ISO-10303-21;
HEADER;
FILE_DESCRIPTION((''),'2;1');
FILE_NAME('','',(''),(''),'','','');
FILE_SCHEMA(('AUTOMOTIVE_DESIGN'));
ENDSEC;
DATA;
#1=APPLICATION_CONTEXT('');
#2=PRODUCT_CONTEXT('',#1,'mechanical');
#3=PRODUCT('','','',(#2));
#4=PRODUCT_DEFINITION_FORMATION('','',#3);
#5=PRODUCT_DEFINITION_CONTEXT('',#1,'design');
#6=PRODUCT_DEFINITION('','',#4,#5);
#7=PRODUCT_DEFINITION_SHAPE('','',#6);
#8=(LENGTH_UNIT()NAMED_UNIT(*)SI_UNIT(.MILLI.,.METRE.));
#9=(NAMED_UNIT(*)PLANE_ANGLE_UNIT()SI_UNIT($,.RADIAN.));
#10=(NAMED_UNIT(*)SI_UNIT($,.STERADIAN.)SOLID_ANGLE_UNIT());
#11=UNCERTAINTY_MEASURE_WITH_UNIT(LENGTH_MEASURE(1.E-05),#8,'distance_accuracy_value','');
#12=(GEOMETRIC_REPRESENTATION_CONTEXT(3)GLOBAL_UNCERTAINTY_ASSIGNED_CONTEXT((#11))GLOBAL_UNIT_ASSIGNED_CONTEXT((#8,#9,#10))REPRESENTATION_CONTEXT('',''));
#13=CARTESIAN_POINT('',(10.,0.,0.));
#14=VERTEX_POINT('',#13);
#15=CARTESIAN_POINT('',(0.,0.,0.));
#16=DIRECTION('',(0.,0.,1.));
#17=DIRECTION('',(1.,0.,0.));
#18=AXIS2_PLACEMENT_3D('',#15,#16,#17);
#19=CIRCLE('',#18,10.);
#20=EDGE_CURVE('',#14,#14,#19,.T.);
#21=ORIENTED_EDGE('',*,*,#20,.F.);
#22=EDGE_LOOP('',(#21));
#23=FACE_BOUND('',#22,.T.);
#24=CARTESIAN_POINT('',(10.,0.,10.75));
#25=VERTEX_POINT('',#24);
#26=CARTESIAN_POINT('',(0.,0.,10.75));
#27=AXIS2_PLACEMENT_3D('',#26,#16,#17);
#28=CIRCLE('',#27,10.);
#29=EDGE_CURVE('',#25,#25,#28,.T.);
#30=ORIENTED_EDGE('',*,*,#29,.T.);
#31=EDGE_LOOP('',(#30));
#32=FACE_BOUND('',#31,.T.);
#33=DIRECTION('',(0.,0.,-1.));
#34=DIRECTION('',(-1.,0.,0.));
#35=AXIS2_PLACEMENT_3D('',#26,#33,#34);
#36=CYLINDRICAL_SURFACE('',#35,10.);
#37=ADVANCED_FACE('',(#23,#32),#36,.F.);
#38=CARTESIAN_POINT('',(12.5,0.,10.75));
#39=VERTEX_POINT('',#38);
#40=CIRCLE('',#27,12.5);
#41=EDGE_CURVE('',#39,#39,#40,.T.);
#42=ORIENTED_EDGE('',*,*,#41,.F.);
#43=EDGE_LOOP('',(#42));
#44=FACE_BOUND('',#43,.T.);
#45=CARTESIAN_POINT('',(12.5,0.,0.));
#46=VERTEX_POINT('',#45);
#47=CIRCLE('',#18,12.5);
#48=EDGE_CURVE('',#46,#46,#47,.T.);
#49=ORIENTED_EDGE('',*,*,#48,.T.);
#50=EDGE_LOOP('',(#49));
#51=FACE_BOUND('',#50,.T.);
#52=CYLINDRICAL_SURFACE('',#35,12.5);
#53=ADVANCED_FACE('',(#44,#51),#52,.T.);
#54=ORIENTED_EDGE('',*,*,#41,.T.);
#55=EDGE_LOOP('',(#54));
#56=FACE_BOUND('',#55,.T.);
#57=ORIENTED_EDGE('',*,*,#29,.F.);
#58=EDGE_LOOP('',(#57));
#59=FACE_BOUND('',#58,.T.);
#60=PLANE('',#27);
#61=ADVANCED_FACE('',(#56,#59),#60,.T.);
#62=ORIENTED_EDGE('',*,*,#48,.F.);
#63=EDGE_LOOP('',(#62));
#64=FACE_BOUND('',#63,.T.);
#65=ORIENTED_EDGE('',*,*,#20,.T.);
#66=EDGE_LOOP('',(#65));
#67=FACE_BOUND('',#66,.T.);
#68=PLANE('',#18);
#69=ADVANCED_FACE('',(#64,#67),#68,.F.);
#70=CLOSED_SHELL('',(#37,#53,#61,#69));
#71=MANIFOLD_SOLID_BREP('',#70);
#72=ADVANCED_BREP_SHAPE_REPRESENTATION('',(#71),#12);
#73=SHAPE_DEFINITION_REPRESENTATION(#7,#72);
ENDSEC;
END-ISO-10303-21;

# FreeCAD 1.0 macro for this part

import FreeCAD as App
import Part
import Sketcher
from FreeCAD import Vector
Q = App.Units.Quantity

doc = App.newDocument("Part")
body = doc.addObject("PartDesign::Body", "Body")

sketch1 = doc.addObject("Sketcher::SketchObject", "Sketch")
body.addObject(sketch1)
sketch1.AttachmentSupport = (doc.XY_Plane, [""])
sketch1.MapMode = "FlatFace"
sketch1.addGeometry(Part.Circle(Vector(0, 0, 0), Vector(0, 0, 1), 12), False)
sketch1.addGeometry(Part.Circle(Vector(0, 0, 0), Vector(0, 0, 1), 10), False)
sketch1.addConstraint(Sketcher.Constraint("Coincident", 0, 3, -1, 1))
sketch1.addConstraint(Sketcher.Constraint("Coincident", 1, 3, -1, 1))
sketch1.addConstraint(Sketcher.Constraint("Diameter", 0, Q("25 mm")))
sketch1.addConstraint(Sketcher.Constraint("Diameter", 1, Q("20 mm")))
pad1 = doc.addObject("PartDesign::Pad", "Pad")
body.addObject(pad1)
pad1.Profile = sketch1
pad1.Length = 10.75

doc.recompute()
